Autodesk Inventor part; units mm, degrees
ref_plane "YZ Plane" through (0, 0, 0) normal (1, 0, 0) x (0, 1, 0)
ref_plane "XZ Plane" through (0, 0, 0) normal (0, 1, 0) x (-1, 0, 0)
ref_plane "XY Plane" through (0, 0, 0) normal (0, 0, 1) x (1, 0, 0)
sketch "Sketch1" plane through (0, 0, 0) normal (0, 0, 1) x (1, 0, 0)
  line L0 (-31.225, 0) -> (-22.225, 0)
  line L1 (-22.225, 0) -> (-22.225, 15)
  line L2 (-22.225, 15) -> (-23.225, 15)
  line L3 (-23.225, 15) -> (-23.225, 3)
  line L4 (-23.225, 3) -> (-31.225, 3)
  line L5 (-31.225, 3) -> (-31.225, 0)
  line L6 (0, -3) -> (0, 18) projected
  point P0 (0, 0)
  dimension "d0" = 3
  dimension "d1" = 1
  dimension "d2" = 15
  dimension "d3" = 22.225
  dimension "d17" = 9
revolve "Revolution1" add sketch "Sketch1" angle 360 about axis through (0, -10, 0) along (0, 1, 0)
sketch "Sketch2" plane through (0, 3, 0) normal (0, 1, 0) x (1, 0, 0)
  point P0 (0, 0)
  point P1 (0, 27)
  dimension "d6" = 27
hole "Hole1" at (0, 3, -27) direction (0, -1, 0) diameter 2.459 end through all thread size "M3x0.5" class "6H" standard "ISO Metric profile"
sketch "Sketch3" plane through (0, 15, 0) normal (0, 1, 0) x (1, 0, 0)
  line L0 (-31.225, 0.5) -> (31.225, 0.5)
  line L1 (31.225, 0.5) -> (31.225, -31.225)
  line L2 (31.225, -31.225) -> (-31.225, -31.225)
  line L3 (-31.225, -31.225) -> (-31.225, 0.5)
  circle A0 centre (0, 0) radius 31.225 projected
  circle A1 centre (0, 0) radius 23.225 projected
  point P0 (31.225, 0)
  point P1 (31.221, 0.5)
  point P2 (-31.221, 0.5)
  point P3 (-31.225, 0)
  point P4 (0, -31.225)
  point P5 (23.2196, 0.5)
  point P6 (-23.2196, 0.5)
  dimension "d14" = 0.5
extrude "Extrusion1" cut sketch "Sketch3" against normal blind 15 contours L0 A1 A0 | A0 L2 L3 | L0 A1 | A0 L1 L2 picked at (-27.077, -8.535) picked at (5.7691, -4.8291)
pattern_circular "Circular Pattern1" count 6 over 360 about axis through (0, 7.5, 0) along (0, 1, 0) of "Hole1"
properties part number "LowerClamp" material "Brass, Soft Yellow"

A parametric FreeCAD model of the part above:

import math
import FreeCAD as App
import Part
import Sketcher
from FreeCAD import Vector
Q = App.Units.Quantity

doc = App.newDocument("Part")
body = doc.addObject("PartDesign::Body", "Body")

# Sketch on XY plane
sketch1 = body.newObject("Sketcher::SketchObject", "Sketch")
sketch1.AttachmentSupport = (doc.getObject("XY_Plane"), [""])
sketch1.MapMode = "FlatFace"
sketch1.addGeometry(Part.LineSegment(Vector(-31.2, 3, 0), Vector(-31.2, 0, 0)), False)
sketch1.addGeometry(Part.LineSegment(Vector(-31.2, 0, 0), Vector(-22.2, 0, 0)), False)
sketch1.addGeometry(Part.LineSegment(Vector(-22.2, 0, 0), Vector(-22.2, 15, 0)), False)
sketch1.addGeometry(Part.LineSegment(Vector(-22.2, 15, 0), Vector(-23.2, 15, 0)), False)
sketch1.addGeometry(Part.LineSegment(Vector(-23.2, 15, 0), Vector(-23.2, 3, 0)), False)
sketch1.addGeometry(Part.LineSegment(Vector(-23.2, 3, 0), Vector(-31.2, 3, 0)), False)
sketch1.addConstraint(Sketcher.Constraint("Coincident", 0, 2, 1, 1))
sketch1.addConstraint(Sketcher.Constraint("Coincident", 1, 2, 2, 1))
sketch1.addConstraint(Sketcher.Constraint("Coincident", 2, 2, 3, 1))
sketch1.addConstraint(Sketcher.Constraint("Coincident", 3, 2, 4, 1))
sketch1.addConstraint(Sketcher.Constraint("Coincident", 4, 2, 5, 1))
sketch1.addConstraint(Sketcher.Constraint("Coincident", 5, 2, 0, 1))
sketch1.addConstraint(Sketcher.Constraint("Vertical", 0))
sketch1.addConstraint(Sketcher.Constraint("Horizontal", 1))
sketch1.addConstraint(Sketcher.Constraint("Vertical", 2))
sketch1.addConstraint(Sketcher.Constraint("Horizontal", 3))
sketch1.addConstraint(Sketcher.Constraint("Vertical", 4))
sketch1.addConstraint(Sketcher.Constraint("Horizontal", 5))
sketch1.addConstraint(Sketcher.Constraint("PointOnObject", 0, 2, -1))
sketch1.addConstraint(Sketcher.Constraint("DistanceX", 1, 1, 1, 2, Q("9 mm")))
sketch1.addConstraint(Sketcher.Constraint("DistanceX", 3, 2, 3, 1, Q("1 mm")))
sketch1.addConstraint(Sketcher.Constraint("DistanceY", 0, 2, 0, 1, Q("3 mm")))
sketch1.addConstraint(Sketcher.Constraint("DistanceY", 2, 1, 2, 2, Q("15 mm")))
sketch1.addConstraint(Sketcher.Constraint("DistanceX", 1, 2, -1, 1, Q("22.225 mm")))
revolution = body.newObject("PartDesign::Revolution", "Revolution")
revolution.Profile = sketch1
revolution.ReferenceAxis = (sketch1, ["V_Axis"])
revolution.Angle = 360

# Sketch on XZ plane
sketch2 = body.newObject("Sketcher::SketchObject", "Sketch001")
sketch2.AttachmentSupport = (doc.getObject("XZ_Plane"), [""])
sketch2.MapMode = "FlatFace"
sketch2.AttachmentOffset = App.Placement(Vector(0, 0, -3), App.Rotation())
sketch2.addGeometry(Part.Circle(Vector(0, -27, 0), Vector(0, 0, 1), 1.2), False)
sketch2.addConstraint(Sketcher.Constraint("PointOnObject", 0, 3, -2))
sketch2.addConstraint(Sketcher.Constraint("Diameter", 0, Q("2.459 mm")))
sketch2.addConstraint(Sketcher.Constraint("DistanceY", 0, 3, -1, 1, Q("27 mm")))
doc.recompute()
hole = body.newObject("PartDesign::Hole", "Hole")
hole.Profile = sketch2
hole.ThreadType = "None"
hole.Diameter = 2.459
hole.DepthType = "ThroughAll"
hole.Reversed = True

# Sketch on XZ plane
sketch3 = body.newObject("Sketcher::SketchObject", "Sketch002")
sketch3.AttachmentSupport = (doc.getObject("XZ_Plane"), [""])
sketch3.MapMode = "FlatFace"
sketch3.AttachmentOffset = App.Placement(Vector(0, 0, -15), App.Rotation())
sketch3.addGeometry(Part.ArcOfCircle(Part.Circle(Vector(0, 0, 0), Vector(0, 0, 1), 31.2), math.radians(-180), math.radians(-179.08)), False)
sketch3.addGeometry(Part.LineSegment(Vector(-31.2, 0, 0), Vector(-31.2, 31.2, 0)), False)
sketch3.addGeometry(Part.LineSegment(Vector(-31.2, 31.2, 0), Vector(31.2, 31.2, 0)), False)
sketch3.addGeometry(Part.LineSegment(Vector(31.2, 31.2, 0), Vector(31.2, 0, 0)), False)
sketch3.addGeometry(Part.ArcOfCircle(Part.Circle(Vector(0, 0, 0), Vector(0, 0, 1), 31.2), math.radians(-0.92), math.radians(0)), False)
sketch3.addGeometry(Part.LineSegment(Vector(31.2, -0.5, 0), Vector(-31.2, -0.5, 0)), False)
sketch3.addConstraint(Sketcher.Constraint("Tangent", 0, 1, 1, 1))
sketch3.addConstraint(Sketcher.Constraint("Coincident", 1, 2, 2, 1))
sketch3.addConstraint(Sketcher.Constraint("Coincident", 2, 2, 3, 1))
sketch3.addConstraint(Sketcher.Constraint("Tangent", 3, 2, 4, 2))
sketch3.addConstraint(Sketcher.Constraint("Coincident", 4, 1, 5, 1))
sketch3.addConstraint(Sketcher.Constraint("Coincident", 5, 2, 0, 2))
sketch3.addConstraint(Sketcher.Constraint("Vertical", 1))
sketch3.addConstraint(Sketcher.Constraint("Horizontal", 2))
sketch3.addConstraint(Sketcher.Constraint("Vertical", 3))
sketch3.addConstraint(Sketcher.Constraint("Horizontal", 5))
sketch3.addConstraint(Sketcher.Constraint("Coincident", 0, 3, -1, 1))
sketch3.addConstraint(Sketcher.Constraint("Coincident", 4, 3, -1, 1))
sketch3.addConstraint(Sketcher.Constraint("Equal", 0, 4))
sketch3.addConstraint(Sketcher.Constraint("DistanceY", 4, 1, -1, 1, Q("0.5 mm")))
sketch3.addConstraint(Sketcher.Constraint("Radius", 0, Q("31.225 mm")))
sketch3.addConstraint(Sketcher.Constraint("DistanceY", 1, 1, 1, 2, Q("31.225 mm")))
pocket1 = body.newObject("PartDesign::Pocket", "Pocket")
pocket1.Profile = sketch3
pocket1.Length = 15
pocket1.Reversed = True
doc.recompute()

polarpattern = body.newObject("PartDesign::PolarPattern", "PolarPattern")
polarpattern.Originals = [hole]
polarpattern.Axis = (doc.getObject("Y_Axis"), [""])
polarpattern.Angle = 360
polarpattern.Occurrences = 6
body.Tip = polarpattern

doc.recompute()
